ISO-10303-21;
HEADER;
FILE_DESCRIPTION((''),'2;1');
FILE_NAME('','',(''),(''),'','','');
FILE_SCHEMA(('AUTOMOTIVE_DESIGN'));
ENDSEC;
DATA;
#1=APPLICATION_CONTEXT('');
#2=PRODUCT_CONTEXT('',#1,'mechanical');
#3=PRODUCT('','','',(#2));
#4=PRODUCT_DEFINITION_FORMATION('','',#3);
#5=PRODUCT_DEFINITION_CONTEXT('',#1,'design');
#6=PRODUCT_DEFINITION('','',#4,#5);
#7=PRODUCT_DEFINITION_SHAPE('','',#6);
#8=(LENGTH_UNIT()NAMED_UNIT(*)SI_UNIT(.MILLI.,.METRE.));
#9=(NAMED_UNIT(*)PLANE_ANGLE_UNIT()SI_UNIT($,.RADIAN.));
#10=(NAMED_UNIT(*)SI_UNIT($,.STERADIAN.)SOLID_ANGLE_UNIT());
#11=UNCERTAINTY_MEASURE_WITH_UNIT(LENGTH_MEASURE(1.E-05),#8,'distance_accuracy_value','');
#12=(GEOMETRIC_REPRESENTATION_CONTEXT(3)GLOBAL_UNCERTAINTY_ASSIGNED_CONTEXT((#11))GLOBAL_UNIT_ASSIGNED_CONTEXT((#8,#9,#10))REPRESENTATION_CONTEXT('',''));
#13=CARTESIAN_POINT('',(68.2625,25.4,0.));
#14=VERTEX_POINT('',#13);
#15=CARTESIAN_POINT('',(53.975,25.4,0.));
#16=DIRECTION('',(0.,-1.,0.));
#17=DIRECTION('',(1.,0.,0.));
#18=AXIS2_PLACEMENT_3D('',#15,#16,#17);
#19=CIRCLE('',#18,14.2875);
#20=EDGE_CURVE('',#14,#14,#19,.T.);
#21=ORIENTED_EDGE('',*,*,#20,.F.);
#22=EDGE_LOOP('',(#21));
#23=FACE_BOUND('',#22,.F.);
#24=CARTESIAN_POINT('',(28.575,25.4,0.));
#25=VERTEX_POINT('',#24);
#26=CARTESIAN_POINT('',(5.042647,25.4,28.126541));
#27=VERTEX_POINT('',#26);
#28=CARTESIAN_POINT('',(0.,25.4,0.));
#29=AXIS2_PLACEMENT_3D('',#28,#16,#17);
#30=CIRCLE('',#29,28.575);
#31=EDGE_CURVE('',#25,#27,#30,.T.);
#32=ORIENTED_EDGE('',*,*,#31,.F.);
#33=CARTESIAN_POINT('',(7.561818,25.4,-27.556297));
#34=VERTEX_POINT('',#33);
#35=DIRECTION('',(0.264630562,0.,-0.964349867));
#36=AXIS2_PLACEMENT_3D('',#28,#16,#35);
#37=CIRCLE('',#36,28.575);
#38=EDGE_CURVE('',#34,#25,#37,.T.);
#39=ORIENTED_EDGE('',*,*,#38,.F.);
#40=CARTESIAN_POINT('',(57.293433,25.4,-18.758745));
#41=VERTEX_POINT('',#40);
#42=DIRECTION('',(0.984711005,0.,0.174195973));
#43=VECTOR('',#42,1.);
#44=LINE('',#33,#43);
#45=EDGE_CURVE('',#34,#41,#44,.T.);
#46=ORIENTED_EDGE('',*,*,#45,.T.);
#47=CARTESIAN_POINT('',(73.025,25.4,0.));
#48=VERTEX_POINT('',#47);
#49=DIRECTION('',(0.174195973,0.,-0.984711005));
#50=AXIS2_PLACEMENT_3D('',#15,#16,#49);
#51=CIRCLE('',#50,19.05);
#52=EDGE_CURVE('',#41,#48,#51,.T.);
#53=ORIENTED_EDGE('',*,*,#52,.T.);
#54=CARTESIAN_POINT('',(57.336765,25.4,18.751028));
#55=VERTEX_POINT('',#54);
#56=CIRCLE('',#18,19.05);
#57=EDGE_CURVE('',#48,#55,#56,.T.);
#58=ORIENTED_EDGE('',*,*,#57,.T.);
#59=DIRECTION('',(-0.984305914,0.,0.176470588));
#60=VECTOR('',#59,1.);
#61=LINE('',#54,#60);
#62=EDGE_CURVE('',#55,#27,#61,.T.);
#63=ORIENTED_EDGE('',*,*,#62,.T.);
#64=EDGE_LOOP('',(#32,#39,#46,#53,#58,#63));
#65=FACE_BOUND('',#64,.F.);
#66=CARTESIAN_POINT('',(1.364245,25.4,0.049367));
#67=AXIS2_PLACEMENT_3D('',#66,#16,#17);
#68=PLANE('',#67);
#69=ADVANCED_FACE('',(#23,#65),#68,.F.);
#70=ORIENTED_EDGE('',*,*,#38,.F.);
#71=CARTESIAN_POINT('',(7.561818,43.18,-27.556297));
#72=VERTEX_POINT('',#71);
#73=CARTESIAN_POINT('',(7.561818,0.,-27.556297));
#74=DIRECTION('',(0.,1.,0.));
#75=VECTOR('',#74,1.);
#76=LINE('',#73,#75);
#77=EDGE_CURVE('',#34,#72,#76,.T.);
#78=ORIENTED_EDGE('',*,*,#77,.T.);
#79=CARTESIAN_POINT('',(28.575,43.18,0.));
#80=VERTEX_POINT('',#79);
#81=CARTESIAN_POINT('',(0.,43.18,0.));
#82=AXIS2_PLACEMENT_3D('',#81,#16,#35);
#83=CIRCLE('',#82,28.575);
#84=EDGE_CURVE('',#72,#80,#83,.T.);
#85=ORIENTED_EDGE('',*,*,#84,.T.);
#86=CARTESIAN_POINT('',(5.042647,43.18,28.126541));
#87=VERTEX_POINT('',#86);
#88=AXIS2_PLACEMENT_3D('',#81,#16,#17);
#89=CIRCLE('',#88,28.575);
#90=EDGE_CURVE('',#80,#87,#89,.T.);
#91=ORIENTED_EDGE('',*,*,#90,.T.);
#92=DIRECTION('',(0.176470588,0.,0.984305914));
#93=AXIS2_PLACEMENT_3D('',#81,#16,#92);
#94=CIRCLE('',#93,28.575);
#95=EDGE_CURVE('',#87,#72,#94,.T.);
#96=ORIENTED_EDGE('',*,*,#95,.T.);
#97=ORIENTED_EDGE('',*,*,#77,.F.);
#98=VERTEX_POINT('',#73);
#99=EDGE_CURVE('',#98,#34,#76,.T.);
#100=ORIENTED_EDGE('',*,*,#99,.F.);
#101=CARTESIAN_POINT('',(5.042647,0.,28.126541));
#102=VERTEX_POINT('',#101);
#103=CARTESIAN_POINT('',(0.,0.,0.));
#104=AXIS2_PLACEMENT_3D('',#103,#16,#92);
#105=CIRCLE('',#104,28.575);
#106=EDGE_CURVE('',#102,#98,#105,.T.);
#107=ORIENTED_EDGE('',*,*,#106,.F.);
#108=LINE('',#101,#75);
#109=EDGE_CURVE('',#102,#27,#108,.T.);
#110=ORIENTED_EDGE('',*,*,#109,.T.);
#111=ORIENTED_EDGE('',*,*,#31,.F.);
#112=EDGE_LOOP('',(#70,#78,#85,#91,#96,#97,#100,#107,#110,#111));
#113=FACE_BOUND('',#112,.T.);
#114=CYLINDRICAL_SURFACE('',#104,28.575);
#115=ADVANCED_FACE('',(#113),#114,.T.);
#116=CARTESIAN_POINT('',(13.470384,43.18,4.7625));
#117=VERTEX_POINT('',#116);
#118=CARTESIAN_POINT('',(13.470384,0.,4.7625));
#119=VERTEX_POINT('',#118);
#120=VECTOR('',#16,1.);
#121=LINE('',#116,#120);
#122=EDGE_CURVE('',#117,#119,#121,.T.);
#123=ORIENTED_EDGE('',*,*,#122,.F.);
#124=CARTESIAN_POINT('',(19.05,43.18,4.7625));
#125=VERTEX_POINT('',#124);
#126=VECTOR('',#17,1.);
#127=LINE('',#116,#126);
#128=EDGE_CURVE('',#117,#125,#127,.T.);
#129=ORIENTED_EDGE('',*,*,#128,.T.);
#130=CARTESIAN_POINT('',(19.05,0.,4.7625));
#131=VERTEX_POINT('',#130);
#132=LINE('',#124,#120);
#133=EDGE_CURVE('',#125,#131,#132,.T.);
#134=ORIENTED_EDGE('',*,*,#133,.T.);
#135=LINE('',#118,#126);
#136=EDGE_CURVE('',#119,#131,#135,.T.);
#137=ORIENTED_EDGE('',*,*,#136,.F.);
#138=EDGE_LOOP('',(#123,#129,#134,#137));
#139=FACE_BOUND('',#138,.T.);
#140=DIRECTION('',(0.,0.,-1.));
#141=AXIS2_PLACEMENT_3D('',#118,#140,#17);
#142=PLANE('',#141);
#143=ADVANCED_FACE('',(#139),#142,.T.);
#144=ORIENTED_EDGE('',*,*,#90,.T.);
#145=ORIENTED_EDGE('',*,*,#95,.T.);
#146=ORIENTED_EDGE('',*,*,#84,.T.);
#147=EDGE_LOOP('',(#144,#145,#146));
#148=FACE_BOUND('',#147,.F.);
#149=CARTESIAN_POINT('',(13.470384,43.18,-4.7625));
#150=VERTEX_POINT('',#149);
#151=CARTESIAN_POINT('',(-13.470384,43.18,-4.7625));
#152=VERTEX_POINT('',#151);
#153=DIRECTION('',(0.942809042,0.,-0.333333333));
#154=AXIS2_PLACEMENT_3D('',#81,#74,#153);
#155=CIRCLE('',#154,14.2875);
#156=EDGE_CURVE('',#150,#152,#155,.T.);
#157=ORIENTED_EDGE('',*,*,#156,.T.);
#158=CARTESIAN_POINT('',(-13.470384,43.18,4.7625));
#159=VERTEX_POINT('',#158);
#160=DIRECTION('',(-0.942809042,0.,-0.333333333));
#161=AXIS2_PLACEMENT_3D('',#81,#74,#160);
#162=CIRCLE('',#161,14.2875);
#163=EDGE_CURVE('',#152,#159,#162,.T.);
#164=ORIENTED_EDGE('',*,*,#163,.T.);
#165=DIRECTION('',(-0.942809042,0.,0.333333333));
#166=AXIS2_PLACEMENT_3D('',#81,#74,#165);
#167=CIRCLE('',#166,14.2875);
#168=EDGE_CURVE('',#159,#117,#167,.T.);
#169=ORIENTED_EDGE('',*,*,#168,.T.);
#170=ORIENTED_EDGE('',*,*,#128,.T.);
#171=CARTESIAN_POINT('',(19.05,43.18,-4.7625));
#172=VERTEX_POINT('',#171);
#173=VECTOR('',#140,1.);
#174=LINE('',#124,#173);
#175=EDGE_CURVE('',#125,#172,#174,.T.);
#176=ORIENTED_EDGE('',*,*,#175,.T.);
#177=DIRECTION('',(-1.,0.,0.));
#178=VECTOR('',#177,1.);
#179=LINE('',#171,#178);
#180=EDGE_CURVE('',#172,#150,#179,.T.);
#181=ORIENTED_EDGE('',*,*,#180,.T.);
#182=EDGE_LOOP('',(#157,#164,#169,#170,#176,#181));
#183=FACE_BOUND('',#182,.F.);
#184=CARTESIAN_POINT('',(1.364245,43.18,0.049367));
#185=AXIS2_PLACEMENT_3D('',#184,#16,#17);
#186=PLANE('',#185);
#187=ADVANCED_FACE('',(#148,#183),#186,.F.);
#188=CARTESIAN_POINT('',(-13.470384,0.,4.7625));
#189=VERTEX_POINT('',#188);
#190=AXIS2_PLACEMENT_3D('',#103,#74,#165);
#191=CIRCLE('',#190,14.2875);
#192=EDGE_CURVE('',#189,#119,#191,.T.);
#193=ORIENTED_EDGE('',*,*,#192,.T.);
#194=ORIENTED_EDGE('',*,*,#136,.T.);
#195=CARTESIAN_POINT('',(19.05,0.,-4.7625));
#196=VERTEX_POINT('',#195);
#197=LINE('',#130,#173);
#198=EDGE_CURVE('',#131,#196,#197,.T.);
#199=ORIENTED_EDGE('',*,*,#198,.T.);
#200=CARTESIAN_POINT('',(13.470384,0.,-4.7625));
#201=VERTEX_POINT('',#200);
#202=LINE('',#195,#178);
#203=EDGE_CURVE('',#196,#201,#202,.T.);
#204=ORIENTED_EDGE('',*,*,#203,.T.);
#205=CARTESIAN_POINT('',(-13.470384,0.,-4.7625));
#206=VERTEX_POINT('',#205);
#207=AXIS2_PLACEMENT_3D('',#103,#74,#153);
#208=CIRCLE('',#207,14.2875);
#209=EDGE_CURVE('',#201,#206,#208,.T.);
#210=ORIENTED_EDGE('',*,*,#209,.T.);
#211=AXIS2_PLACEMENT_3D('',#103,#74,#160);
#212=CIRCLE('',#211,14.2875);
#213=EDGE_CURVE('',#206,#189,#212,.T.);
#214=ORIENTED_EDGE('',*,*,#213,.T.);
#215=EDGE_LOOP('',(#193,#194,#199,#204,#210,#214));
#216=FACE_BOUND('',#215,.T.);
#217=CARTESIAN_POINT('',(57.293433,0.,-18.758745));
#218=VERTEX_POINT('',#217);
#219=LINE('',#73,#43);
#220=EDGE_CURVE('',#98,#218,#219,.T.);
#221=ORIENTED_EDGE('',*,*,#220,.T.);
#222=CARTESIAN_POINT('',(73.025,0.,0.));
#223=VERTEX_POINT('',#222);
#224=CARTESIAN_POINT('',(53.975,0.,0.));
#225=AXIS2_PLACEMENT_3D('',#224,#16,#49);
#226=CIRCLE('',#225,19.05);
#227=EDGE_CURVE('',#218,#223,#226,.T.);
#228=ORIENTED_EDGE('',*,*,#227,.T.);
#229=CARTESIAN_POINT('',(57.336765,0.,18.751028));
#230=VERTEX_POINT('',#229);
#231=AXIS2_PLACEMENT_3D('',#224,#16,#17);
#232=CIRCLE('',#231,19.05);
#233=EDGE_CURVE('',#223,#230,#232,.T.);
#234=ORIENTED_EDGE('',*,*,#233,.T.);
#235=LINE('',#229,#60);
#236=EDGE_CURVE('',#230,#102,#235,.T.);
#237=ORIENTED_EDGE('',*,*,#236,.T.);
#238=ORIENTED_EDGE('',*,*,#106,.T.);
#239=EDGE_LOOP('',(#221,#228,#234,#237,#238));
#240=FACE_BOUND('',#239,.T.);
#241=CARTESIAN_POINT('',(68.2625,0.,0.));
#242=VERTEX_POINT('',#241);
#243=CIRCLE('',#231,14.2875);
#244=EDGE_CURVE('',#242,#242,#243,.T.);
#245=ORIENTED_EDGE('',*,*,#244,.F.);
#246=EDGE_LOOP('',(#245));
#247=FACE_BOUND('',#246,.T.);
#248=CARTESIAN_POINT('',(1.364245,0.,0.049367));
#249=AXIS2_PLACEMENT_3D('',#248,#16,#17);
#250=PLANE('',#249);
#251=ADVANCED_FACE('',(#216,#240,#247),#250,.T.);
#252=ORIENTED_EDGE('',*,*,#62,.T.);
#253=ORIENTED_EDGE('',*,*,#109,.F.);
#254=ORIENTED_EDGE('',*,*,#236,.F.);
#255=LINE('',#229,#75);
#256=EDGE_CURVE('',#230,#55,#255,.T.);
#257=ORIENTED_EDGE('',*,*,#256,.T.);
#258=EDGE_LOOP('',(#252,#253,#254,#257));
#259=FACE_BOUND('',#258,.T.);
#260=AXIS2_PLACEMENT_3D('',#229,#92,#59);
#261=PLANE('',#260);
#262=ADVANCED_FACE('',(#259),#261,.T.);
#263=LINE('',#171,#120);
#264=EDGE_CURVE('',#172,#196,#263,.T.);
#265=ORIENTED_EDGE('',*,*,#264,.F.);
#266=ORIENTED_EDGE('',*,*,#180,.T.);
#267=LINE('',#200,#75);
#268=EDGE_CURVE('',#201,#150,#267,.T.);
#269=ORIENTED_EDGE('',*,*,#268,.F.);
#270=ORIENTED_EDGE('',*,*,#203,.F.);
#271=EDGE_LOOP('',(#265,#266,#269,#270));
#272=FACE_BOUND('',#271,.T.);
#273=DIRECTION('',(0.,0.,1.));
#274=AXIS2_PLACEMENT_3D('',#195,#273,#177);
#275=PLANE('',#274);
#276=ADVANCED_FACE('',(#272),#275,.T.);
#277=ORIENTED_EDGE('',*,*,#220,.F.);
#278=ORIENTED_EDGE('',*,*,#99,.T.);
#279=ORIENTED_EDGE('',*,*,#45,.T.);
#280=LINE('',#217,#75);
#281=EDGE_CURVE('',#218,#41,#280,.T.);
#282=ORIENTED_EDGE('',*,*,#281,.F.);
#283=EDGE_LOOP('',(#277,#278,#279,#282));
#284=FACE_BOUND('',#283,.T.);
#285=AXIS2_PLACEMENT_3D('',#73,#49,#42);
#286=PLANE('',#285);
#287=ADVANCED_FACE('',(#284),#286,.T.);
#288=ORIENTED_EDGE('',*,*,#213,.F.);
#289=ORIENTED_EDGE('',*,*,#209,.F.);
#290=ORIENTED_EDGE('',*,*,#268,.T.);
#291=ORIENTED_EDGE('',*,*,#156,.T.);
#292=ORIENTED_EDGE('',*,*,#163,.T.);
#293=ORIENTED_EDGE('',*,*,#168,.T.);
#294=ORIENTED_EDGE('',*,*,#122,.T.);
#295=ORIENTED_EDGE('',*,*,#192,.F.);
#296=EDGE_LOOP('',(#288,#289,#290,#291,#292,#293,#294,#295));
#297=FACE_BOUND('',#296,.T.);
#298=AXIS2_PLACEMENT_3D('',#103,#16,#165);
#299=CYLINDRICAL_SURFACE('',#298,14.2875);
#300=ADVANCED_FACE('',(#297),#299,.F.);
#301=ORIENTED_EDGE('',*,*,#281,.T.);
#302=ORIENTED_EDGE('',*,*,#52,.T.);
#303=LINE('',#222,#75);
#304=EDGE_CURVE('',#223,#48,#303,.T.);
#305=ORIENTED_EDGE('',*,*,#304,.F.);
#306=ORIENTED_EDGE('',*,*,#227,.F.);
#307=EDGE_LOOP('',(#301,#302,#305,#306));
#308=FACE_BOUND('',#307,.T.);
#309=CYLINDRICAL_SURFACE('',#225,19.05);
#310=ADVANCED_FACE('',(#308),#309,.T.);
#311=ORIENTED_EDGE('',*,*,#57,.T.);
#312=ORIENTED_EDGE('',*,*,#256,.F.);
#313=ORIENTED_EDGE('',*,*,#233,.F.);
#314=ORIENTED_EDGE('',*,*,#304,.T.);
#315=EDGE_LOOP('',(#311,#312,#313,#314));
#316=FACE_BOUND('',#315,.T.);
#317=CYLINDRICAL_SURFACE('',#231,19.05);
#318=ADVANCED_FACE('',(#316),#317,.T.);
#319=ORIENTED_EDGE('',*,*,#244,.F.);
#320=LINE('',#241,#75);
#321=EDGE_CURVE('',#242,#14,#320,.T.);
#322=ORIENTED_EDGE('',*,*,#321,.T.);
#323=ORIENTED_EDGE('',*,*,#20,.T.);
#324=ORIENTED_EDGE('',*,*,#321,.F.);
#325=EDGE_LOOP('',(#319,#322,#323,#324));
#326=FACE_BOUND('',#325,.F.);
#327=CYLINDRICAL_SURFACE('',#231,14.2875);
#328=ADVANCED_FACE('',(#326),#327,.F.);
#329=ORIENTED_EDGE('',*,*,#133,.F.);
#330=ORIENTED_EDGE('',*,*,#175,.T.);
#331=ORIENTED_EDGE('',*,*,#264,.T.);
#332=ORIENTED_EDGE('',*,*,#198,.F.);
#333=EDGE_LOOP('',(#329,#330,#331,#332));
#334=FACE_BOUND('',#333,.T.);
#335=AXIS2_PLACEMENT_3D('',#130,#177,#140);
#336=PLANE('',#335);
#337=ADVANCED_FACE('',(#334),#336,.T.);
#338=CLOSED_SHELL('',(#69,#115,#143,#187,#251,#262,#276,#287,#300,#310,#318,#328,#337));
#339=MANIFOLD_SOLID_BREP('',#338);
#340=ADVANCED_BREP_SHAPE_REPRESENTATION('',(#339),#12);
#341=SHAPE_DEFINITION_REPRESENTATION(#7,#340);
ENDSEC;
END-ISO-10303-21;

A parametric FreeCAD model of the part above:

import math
import FreeCAD as App
import Part
import Sketcher

V = App.Vector
Q = App.Units.Quantity

doc = App.newDocument("Part")
params = doc.addObject("Spreadsheet::Sheet", "Params")
for row, (alias, value) in enumerate([
    ("sketch1_radius", "0.75 in"),
    ("sketch1_diameter", "1.125 in"),
    ("sketch1_radius2", "1.125 in"),
    ("sketch1_height", "0.375 in"),
    ("pad1_length", "1 in"),
    ("sketch2_radius", "1.125 in"),
    ("sketch2_radius2", "0.5625 in"),
    ("sketch2_height", "0.375 in"),
    ("pad2_length", "1.7 in"),
], start=1):
    params.set(f"A{row}", alias)
    params.set(f"B{row}", "=" + value)
    params.setAlias(f"B{row}", alias)

body = doc.addObject("PartDesign::Body", "Body")

# Sketch on XZ plane
sketch1 = body.newObject("Sketcher::SketchObject", "Sketch")
sketch1.AttachmentSupport = (doc.getObject("XZ_Plane"), [""])
sketch1.MapMode = "FlatFace"
sketch1.addGeometry([
    Part.ArcOfCircle(Part.Circle(V(0, 0, 0), V(0, 0, 1), 28.575), math.radians(79.835751), math.radians(285.345002)),  # 0
    Part.LineSegment(V(7.561818, -27.556297, 0), V(57.293433, -18.758745, 0)),  # 1
    Part.ArcOfCircle(Part.Circle(V(53.975, 0, 0), V(0, 0, 1), 19.05), math.radians(-79.968128), math.radians(0)),  # 2
    Part.ArcOfCircle(Part.Circle(V(53.975, 0, 0), V(0, 0, 1), 19.05), math.radians(0), math.radians(79.835751)),  # 3
    Part.LineSegment(V(57.336765, 18.751028, 0), V(5.042647, 28.126541, 0)),  # 4
    Part.Circle(V(53.975, 0, 0), V(0, 0, 1), 14.2875),  # 5
    Part.ArcOfCircle(Part.Circle(V(0, 0, 0), V(0, 0, 1), 14.2875), math.radians(19.471221), math.radians(160.528779)),  # 6
    Part.LineSegment(V(13.470384, 4.7625, 0), V(19.05, 4.7625, 0)),  # 7
    Part.LineSegment(V(19.05, 4.7625, 0), V(19.05, -4.7625, 0)),  # 8
    Part.LineSegment(V(19.05, -4.7625, 0), V(13.470384, -4.7625, 0)),  # 9
    Part.ArcOfCircle(Part.Circle(V(0, 0, 0), V(0, 0, 1), 14.2875), math.radians(-160.528779), math.radians(-19.471221)),  # 10
    Part.ArcOfCircle(Part.Circle(V(0, 0, 0), V(0, 0, 1), 14.2875), math.radians(160.528779), math.radians(199.471221)),  # 11
], False)
sketch1.addConstraint([
    Sketcher.Constraint("Coincident", 0, 2, 1, 1),
    Sketcher.Constraint("Tangent", 1, 2, 2, 1),
    Sketcher.Constraint("Tangent", 2, 2, 3, 1),
    Sketcher.Constraint("Tangent", 3, 2, 4, 1),
    Sketcher.Constraint("Tangent", 4, 2, 0, 1),
    Sketcher.Constraint("Coincident", 6, 1, 7, 1),
    Sketcher.Constraint("Coincident", 7, 2, 8, 1),
    Sketcher.Constraint("Coincident", 8, 2, 9, 1),
    Sketcher.Constraint("Coincident", 9, 2, 10, 2),
    Sketcher.Constraint("Tangent", 10, 1, 11, 2),
    Sketcher.Constraint("Tangent", 11, 1, 6, 2),
    Sketcher.Constraint("Horizontal", 7),
    Sketcher.Constraint("Vertical", 8),
    Sketcher.Constraint("Horizontal", 9),
    Sketcher.Constraint("Coincident", 0, 3, -1, 1),
    Sketcher.Constraint("Coincident", 6, 3, -1, 1),
    Sketcher.Constraint("Coincident", 10, 3, -1, 1),
    Sketcher.Constraint("Coincident", 5, 3, 2, 3),
    Sketcher.Constraint("Equal", 2, 3),
    Sketcher.Constraint("Equal", 5, 6),
    Sketcher.Constraint("PointOnObject", 2, 3, -1),
    Sketcher.Constraint("PointOnObject", 2, 2, -1),
    Sketcher.Constraint("Horizontal", 9, 2, 10, 1),
    Sketcher.Constraint("Horizontal", 7, 2, 11, 1),
    Sketcher.Constraint("Vertical", 6, 1, 9, 2),
    Sketcher.Constraint("Radius", 2, Q("0.75 in")),
    Sketcher.Constraint("Diameter", 5, Q("1.125 in")),
    Sketcher.Constraint("Radius", 0, Q("1.125 in")),
    Sketcher.Constraint("DistanceY", 8, 2, 8, 1, Q("0.375 in")),
    Sketcher.Constraint("DistanceX", -1, 1, 7, 2, Q("0.75 in")),
    Sketcher.Constraint("DistanceX", -1, 1, 2, 3, Q("2.125 in")),
    Sketcher.Constraint("DistanceX", -1, 1, 0, 2, Q("7.561818 mm")),
])
sketch1.setExpression("Constraints[25]", "Params.sketch1_radius")
sketch1.setExpression("Constraints[26]", "Params.sketch1_diameter")
sketch1.setExpression("Constraints[27]", "Params.sketch1_radius2")
sketch1.setExpression("Constraints[28]", "Params.sketch1_height")
pad1 = body.newObject("PartDesign::Pad", "Pad")
pad1.Profile = sketch1
pad1.setExpression("Length", "Params.pad1_length")
pad1.Reversed = True

# Sketch on XZ plane
sketch2 = body.newObject("Sketcher::SketchObject", "Sketch001")
sketch2.AttachmentSupport = (doc.getObject("XZ_Plane"), [""])
sketch2.MapMode = "FlatFace"
sketch2.addGeometry([
    Part.ArcOfCircle(Part.Circle(V(0, 0, 0), V(0, 0, 1), 28.575), math.radians(-74.654998), math.radians(0)),  # 0
    Part.ArcOfCircle(Part.Circle(V(0, 0, 0), V(0, 0, 1), 28.575), math.radians(0), math.radians(79.835751)),  # 1
    Part.ArcOfCircle(Part.Circle(V(0, 0, 0), V(0, 0, 1), 28.575), math.radians(79.835751), math.radians(285.345002)),  # 2
    Part.ArcOfCircle(Part.Circle(V(0, 0, 0), V(0, 0, 1), 14.2875), math.radians(-160.528779), math.radians(-19.471221)),  # 3
    Part.ArcOfCircle(Part.Circle(V(0, 0, 0), V(0, 0, 1), 14.2875), math.radians(160.528779), math.radians(199.471221)),  # 4
    Part.ArcOfCircle(Part.Circle(V(0, 0, 0), V(0, 0, 1), 14.2875), math.radians(19.471221), math.radians(160.528779)),  # 5
    Part.LineSegment(V(13.470384, 4.7625, 0), V(19.05, 4.7625, 0)),  # 6
    Part.LineSegment(V(19.05, 4.7625, 0), V(19.05, -4.7625, 0)),  # 7
    Part.LineSegment(V(19.05, -4.7625, 0), V(13.470384, -4.7625, 0)),  # 8
], False)
sketch2.addConstraint([
    Sketcher.Constraint("Tangent", 0, 2, 1, 1),
    Sketcher.Constraint("Tangent", 1, 2, 2, 1),
    Sketcher.Constraint("Tangent", 2, 2, 0, 1),
    Sketcher.Constraint("Tangent", 3, 1, 4, 2),
    Sketcher.Constraint("Tangent", 4, 1, 5, 2),
    Sketcher.Constraint("Coincident", 5, 1, 6, 1),
    Sketcher.Constraint("Coincident", 6, 2, 7, 1),
    Sketcher.Constraint("Coincident", 7, 2, 8, 1),
    Sketcher.Constraint("Coincident", 8, 2, 3, 2),
    Sketcher.Constraint("Horizontal", 6),
    Sketcher.Constraint("Vertical", 7),
    Sketcher.Constraint("Horizontal", 8),
    Sketcher.Constraint("Coincident", 0, 3, -1, 1),
    Sketcher.Constraint("Coincident", 3, 3, -1, 1),
    Sketcher.Constraint("Coincident", 5, 3, -1, 1),
    Sketcher.Constraint("PointOnObject", 0, 2, -1),
    Sketcher.Constraint("Horizontal", 4, 1, 5, 1),
    Sketcher.Constraint("Horizontal", 3, 1, 7, 2),
    Sketcher.Constraint("Vertical", 3, 1, 4, 1),
    Sketcher.Constraint("Radius", 0, Q("1.125 in")),
    Sketcher.Constraint("Radius", 3, Q("0.5625 in")),
    Sketcher.Constraint("DistanceY", 7, 2, 7, 1, Q("0.375 in")),
    Sketcher.Constraint("DistanceX", -1, 1, 6, 2, Q("0.75 in")),
    Sketcher.Constraint("DistanceY", -1, 1, 1, 2, Q("28.126541 mm")),
    Sketcher.Constraint("DistanceX", -1, 1, 2, 2, Q("7.561818 mm")),
])
sketch2.setExpression("Constraints[19]", "Params.sketch2_radius")
sketch2.setExpression("Constraints[20]", "Params.sketch2_radius2")
sketch2.setExpression("Constraints[21]", "Params.sketch2_height")
pad2 = body.newObject("PartDesign::Pad", "Pad001")
pad2.Profile = sketch2
pad2.setExpression("Length", "Params.pad2_length")
pad2.Reversed = True

doc.recompute()
